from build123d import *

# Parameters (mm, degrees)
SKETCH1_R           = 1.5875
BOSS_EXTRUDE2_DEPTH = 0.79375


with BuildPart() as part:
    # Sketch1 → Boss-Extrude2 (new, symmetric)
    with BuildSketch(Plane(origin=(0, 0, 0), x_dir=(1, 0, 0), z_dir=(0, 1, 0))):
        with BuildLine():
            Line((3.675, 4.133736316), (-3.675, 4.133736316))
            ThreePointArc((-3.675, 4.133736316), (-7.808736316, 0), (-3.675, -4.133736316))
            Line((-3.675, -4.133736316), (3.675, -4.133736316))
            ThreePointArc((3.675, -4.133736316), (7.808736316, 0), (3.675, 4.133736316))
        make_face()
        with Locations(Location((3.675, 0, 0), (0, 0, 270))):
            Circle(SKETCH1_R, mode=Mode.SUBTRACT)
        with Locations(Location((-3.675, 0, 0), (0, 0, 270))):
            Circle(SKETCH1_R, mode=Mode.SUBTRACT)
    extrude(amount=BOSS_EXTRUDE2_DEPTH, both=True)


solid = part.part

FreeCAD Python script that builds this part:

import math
import FreeCAD as App
import Part
import Sketcher
Q = App.Units.Quantity

doc = App.newDocument("Part")
body = doc.addObject("PartDesign::Body", "Body")

# Sketch on XZ plane
sketch1 = body.newObject("Sketcher::SketchObject", "Sketch")
sketch1.AttachmentSupport = (doc.getObject("XZ_Plane"), [""])
sketch1.MapMode = "FlatFace"
sketch1.addGeometry([
    Part.LineSegment(App.Vector(3.7, -4.1, 0), App.Vector(-3.7, -4.1, 0)),  # 0
    Part.ArcOfCircle(Part.Circle(App.Vector(-3.7, 0, 0), App.Vector(0, 0, 1), 4.1), math.radians(90), math.radians(270)),  # 1
    Part.LineSegment(App.Vector(-3.7, 4.1, 0), App.Vector(3.7, 4.1, 0)),  # 2
    Part.ArcOfCircle(Part.Circle(App.Vector(3.7, 0, 0), App.Vector(0, 0, 1), 4.1), math.radians(-90), math.radians(90)),  # 3
    Part.Circle(App.Vector(-3.7, 0, 0), App.Vector(0, 0, 1), 1.6),  # 4
    Part.Circle(App.Vector(3.7, 0, 0), App.Vector(0, 0, 1), 1.6),  # 5
], False)
sketch1.addConstraint([
    Sketcher.Constraint("Tangent", 0, 2, 1, 2),
    Sketcher.Constraint("Tangent", 1, 1, 2, 1),
    Sketcher.Constraint("Tangent", 2, 2, 3, 2),
    Sketcher.Constraint("Tangent", 3, 1, 0, 1),
    Sketcher.Constraint("Horizontal", 0),
    Sketcher.Constraint("Horizontal", 2),
    Sketcher.Constraint("Coincident", 4, 3, 1, 3),
    Sketcher.Constraint("Coincident", 5, 3, 3, 3),
    Sketcher.Constraint("Equal", 4, 5),
    Sketcher.Constraint("Symmetric", 1, 3, 3, 3, -1, 1),
    Sketcher.Constraint("Diameter", 4, Q("0.125 in")),
    Sketcher.Constraint("DistanceX", 0, 2, 0, 1, 7.35),
    Sketcher.Constraint("Radius", 1, 4.133736),
])
pad1 = body.newObject("PartDesign::Pad", "Pad")
pad1.Profile = sketch1
pad1.Length = Q("0.0625 in")
pad1.Midplane = True

doc.recompute()
